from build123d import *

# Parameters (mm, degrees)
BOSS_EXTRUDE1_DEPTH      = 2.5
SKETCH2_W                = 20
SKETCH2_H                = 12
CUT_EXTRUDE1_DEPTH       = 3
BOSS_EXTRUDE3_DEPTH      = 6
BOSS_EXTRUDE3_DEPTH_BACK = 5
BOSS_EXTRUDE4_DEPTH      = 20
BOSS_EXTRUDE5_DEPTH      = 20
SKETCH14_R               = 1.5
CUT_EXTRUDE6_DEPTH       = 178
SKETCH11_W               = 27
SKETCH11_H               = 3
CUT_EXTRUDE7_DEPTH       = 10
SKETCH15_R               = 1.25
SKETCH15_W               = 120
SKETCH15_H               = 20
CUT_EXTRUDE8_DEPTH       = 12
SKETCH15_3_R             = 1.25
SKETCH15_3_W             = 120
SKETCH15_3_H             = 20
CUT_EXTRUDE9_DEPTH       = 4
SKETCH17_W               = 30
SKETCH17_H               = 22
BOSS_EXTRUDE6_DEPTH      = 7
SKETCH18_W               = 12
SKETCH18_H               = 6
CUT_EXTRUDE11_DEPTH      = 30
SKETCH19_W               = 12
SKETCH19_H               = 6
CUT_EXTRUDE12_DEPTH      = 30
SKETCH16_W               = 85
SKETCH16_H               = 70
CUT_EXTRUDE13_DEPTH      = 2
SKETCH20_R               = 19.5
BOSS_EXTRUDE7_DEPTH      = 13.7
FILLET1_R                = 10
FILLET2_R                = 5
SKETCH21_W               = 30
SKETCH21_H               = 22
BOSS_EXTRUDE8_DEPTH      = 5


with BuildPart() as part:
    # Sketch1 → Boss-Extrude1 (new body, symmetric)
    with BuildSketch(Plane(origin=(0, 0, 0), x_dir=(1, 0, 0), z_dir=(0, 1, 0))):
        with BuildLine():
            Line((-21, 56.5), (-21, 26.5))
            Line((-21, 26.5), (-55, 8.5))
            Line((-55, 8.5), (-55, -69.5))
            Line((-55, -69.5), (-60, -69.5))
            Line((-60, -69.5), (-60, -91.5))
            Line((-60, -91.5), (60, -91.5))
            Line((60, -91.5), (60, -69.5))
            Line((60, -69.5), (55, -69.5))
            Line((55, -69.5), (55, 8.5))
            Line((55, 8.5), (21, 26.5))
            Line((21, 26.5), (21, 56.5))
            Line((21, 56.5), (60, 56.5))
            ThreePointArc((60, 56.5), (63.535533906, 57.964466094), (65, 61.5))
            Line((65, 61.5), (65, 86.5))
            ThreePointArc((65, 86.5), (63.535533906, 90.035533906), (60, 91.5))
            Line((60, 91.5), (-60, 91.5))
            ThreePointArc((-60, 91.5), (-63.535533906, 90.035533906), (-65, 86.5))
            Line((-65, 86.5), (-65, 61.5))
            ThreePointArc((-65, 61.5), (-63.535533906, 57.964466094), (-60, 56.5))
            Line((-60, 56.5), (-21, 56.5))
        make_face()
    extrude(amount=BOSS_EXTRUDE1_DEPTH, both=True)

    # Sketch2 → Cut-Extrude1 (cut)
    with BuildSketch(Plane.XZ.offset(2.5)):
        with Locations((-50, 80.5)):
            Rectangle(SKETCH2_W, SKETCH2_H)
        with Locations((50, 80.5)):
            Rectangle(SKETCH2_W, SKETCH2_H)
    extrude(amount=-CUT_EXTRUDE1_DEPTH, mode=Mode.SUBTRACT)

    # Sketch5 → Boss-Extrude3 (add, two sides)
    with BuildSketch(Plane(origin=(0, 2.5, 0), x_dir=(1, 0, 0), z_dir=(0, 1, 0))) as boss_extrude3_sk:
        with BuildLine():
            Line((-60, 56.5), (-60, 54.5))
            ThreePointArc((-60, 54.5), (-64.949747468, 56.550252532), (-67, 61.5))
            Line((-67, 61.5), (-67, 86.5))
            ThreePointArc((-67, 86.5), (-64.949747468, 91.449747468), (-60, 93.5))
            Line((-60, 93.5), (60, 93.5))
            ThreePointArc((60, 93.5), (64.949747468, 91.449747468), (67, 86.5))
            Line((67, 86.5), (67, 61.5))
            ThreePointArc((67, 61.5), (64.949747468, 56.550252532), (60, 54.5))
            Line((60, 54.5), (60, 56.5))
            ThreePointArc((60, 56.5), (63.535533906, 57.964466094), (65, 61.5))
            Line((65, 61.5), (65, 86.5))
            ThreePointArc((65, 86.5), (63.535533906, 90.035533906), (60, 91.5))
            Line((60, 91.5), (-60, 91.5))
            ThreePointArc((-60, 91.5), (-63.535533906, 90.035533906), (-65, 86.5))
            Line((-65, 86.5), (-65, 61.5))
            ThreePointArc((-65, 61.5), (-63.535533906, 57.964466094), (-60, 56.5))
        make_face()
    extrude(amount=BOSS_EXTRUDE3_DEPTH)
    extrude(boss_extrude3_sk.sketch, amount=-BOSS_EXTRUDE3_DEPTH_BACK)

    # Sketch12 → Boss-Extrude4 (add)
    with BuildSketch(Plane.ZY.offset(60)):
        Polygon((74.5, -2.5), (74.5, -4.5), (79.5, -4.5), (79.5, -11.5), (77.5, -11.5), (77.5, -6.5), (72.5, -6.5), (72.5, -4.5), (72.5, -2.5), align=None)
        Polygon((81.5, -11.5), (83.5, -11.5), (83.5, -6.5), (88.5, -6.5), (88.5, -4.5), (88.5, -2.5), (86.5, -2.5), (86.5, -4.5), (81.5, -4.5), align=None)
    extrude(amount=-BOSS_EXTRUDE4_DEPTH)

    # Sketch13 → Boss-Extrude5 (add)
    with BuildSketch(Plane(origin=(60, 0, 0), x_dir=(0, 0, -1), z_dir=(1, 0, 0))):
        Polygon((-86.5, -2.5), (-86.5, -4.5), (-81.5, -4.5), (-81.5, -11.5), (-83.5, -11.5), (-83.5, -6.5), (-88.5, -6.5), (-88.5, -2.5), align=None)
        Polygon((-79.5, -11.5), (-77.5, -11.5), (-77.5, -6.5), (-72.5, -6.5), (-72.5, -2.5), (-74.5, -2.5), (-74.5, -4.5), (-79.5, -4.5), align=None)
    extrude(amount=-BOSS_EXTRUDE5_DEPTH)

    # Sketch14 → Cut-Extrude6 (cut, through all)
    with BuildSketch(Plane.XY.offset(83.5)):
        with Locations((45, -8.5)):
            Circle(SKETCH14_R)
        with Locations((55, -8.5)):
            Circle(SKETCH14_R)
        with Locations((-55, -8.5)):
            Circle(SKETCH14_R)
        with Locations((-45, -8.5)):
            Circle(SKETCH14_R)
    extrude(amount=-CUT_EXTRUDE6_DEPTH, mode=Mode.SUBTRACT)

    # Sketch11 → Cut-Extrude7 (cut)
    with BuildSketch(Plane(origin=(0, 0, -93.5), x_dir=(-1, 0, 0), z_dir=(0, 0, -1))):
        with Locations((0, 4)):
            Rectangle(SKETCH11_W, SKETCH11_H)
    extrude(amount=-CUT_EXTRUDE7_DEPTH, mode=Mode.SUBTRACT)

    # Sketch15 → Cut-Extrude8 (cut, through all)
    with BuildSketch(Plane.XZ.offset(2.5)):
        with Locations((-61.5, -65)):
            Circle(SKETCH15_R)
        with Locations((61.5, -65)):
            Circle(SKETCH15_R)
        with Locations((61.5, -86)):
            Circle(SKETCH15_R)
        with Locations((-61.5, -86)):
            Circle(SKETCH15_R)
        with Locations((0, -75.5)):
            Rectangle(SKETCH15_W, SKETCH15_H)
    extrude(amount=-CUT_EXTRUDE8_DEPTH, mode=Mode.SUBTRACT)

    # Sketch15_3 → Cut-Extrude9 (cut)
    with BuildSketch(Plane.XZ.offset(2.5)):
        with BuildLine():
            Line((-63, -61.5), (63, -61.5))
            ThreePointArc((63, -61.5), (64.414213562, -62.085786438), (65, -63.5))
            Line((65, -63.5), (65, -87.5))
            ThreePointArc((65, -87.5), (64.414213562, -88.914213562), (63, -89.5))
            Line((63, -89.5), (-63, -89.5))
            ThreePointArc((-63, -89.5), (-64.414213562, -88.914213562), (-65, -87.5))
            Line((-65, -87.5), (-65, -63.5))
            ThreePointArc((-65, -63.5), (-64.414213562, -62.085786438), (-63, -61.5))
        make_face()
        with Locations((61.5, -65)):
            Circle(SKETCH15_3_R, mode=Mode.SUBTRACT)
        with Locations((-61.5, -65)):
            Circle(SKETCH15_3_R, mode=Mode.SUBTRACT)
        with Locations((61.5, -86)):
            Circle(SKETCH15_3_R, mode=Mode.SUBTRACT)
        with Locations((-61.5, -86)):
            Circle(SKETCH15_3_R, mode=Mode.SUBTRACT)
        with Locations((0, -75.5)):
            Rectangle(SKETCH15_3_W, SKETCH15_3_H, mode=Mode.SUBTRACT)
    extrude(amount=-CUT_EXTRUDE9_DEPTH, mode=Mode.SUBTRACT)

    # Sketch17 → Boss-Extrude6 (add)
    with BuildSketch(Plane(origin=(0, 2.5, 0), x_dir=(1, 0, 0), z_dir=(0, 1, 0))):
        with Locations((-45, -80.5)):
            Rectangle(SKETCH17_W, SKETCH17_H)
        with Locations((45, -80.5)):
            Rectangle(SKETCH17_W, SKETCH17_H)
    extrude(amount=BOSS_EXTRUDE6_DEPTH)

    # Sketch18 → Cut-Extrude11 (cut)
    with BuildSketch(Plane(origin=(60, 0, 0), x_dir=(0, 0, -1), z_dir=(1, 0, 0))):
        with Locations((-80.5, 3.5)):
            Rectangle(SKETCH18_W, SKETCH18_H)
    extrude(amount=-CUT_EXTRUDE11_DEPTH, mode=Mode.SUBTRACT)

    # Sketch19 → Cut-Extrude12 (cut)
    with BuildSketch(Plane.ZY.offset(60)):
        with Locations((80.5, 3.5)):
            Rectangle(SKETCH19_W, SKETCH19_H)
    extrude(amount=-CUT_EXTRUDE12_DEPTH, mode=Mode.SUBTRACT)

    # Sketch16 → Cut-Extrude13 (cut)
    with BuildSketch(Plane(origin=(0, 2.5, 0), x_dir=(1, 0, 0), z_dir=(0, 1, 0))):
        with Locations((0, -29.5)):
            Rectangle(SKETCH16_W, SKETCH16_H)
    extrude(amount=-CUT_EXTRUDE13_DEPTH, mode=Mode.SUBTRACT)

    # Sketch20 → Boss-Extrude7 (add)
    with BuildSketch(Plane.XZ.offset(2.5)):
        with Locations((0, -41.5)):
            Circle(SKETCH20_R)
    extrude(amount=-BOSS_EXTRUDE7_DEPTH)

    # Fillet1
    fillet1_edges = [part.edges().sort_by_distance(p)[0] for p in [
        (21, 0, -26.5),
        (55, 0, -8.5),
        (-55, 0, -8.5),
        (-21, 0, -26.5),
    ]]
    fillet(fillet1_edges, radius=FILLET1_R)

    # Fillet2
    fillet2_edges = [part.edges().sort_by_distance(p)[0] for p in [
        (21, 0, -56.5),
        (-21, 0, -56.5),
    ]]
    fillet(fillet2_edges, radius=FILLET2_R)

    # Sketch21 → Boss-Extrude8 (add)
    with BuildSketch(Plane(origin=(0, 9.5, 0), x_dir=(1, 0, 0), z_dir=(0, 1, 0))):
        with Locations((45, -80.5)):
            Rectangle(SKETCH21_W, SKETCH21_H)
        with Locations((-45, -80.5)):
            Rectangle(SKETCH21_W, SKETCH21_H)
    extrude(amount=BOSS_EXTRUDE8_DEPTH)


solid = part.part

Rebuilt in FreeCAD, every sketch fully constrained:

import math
import FreeCAD as App
import Part
import Sketcher


def edges_at(feature, points):
    """Names of the edges that pass closest to the given points."""
    edges = feature.Shape.Edges
    near = lambda p: min(range(len(edges)), key=lambda i: edges[i].distToShape(Part.Vertex(*p))[0])
    return sorted({f"Edge{near(p) + 1}" for p in points})


def add_polygon(sketch, points):
    """Adds a closed chain of lines whose ends are joined by coincident constraints."""
    first, n = sketch.GeometryCount, len(points)
    for a, b in zip(points, points[1:] + points[:1]):
        sketch.addGeometry(Part.LineSegment(App.Vector(*a, 0), App.Vector(*b, 0)), False)
    for i in range(n):
        sketch.addConstraint(Sketcher.Constraint("Coincident", first + i, 2, first + (i + 1) % n, 1))

doc = App.newDocument("Part")
body = doc.addObject("PartDesign::Body", "Body")

sketch1 = doc.addObject("Sketcher::SketchObject", "Sketch")
body.addObject(sketch1)
sketch1.AttachmentSupport = (doc.XZ_Plane, [""])
sketch1.MapMode = "FlatFace"
sketch1.addGeometry([
    Part.LineSegment(App.Vector(-21, -56, 0), App.Vector(-21, -26, 0)),
    Part.LineSegment(App.Vector(-21, -26, 0), App.Vector(-55, -8, 0)),
    Part.LineSegment(App.Vector(-55, -8, 0), App.Vector(-55, 70, 0)),
    Part.LineSegment(App.Vector(-55, 70, 0), App.Vector(-60, 70, 0)),
    Part.LineSegment(App.Vector(-60, 70, 0), App.Vector(-60, 92, 0)),
    Part.LineSegment(App.Vector(-60, 92, 0), App.Vector(60, 92, 0)),
    Part.LineSegment(App.Vector(60, 92, 0), App.Vector(60, 70, 0)),
    Part.LineSegment(App.Vector(60, 70, 0), App.Vector(55, 70, 0)),
    Part.LineSegment(App.Vector(55, 70, 0), App.Vector(55, -8, 0)),
    Part.LineSegment(App.Vector(55, -8, 0), App.Vector(21, -26, 0)),
    Part.LineSegment(App.Vector(21, -26, 0), App.Vector(21, -56, 0)),
    Part.LineSegment(App.Vector(21, -56, 0), App.Vector(60, -56, 0)),
    Part.ArcOfCircle(Part.Circle(App.Vector(60, -62, 0), App.Vector(0, 0, 1), 5), math.radians(0), math.radians(90)),
    Part.LineSegment(App.Vector(65, -62, 0), App.Vector(65, -86, 0)),
    Part.ArcOfCircle(Part.Circle(App.Vector(60, -86, 0), App.Vector(0, 0, 1), 5), math.radians(-90), math.radians(0)),
    Part.LineSegment(App.Vector(60, -92, 0), App.Vector(-60, -92, 0)),
    Part.ArcOfCircle(Part.Circle(App.Vector(-60, -86, 0), App.Vector(0, 0, 1), 5), math.radians(180), math.radians(270)),
    Part.LineSegment(App.Vector(-65, -86, 0), App.Vector(-65, -62, 0)),
    Part.ArcOfCircle(Part.Circle(App.Vector(-60, -62, 0), App.Vector(0, 0, 1), 5), math.radians(90), math.radians(180)),
    Part.LineSegment(App.Vector(-60, -56, 0), App.Vector(-21, -56, 0)),
], False)
sketch1.addConstraint([
    Sketcher.Constraint("Coincident", 0, 2, 1, 1),
    Sketcher.Constraint("Coincident", 1, 2, 2, 1),
    Sketcher.Constraint("Coincident", 2, 2, 3, 1),
    Sketcher.Constraint("Coincident", 3, 2, 4, 1),
    Sketcher.Constraint("Coincident", 4, 2, 5, 1),
    Sketcher.Constraint("Coincident", 5, 2, 6, 1),
    Sketcher.Constraint("Coincident", 6, 2, 7, 1),
    Sketcher.Constraint("Coincident", 7, 2, 8, 1),
    Sketcher.Constraint("Coincident", 8, 2, 9, 1),
    Sketcher.Constraint("Coincident", 9, 2, 10, 1),
    Sketcher.Constraint("Coincident", 10, 2, 11, 1),
    Sketcher.Constraint("Tangent", 11, 2, 12, 2),
    Sketcher.Constraint("Tangent", 12, 1, 13, 1),
    Sketcher.Constraint("Tangent", 13, 2, 14, 2),
    Sketcher.Constraint("Tangent", 14, 1, 15, 1),
    Sketcher.Constraint("Tangent", 15, 2, 16, 2),
    Sketcher.Constraint("Tangent", 16, 1, 17, 1),
    Sketcher.Constraint("Tangent", 17, 2, 18, 2),
    Sketcher.Constraint("Tangent", 18, 1, 19, 1),
    Sketcher.Constraint("Coincident", 19, 2, 0, 1),
    Sketcher.Constraint("Vertical", 0),
    Sketcher.Constraint("Vertical", 2),
    Sketcher.Constraint("Horizontal", 3),
    Sketcher.Constraint("Vertical", 4),
    Sketcher.Constraint("Horizontal", 5),
    Sketcher.Constraint("Vertical", 6),
    Sketcher.Constraint("Horizontal", 7),
    Sketcher.Constraint("Vertical", 8),
    Sketcher.Constraint("Vertical", 10),
    Sketcher.Constraint("Horizontal", 11),
    Sketcher.Constraint("Vertical", 13),
    Sketcher.Constraint("Horizontal", 15),
    Sketcher.Constraint("Vertical", 17),
    Sketcher.Constraint("Horizontal", 19),
    Sketcher.Constraint("Equal", 12, 14),
    Sketcher.Constraint("Equal", 14, 16),
    Sketcher.Constraint("Equal", 16, 18),
    Sketcher.Constraint("Symmetric", 4, 2, 14, 1, -1, 1),
    Sketcher.Constraint("Symmetric", 12, 3, 18, 3, -2),
    Sketcher.Constraint("Symmetric", 3, 2, 6, 2, -2),
    Sketcher.Constraint("Symmetric", 1, 2, 8, 2, -2),
    Sketcher.Constraint("Symmetric", 0, 2, 9, 2, -2),
    Sketcher.Constraint("Radius", 12, 5.0),
    Sketcher.Constraint("DistanceX", 3, 2, 3, 1, 5.0),
    Sketcher.Constraint("DistanceX", 5, 1, 5, 2, 120.0),
    Sketcher.Constraint("DistanceX", 11, 1, 11, 2, 39.0),
    Sketcher.Constraint("DistanceY", 0, 1, 0, 2, 30.0),
    Sketcher.Constraint("DistanceY", 2, 1, 2, 2, 78.0),
    Sketcher.Constraint("DistanceY", 4, 1, 4, 2, 22.0),
    Sketcher.Constraint("DistanceY", 13, 2, 13, 1, 25.0),
    Sketcher.Constraint("DistanceY", 0, 2, 1, 2, 18.0),
])
pad1 = doc.addObject("PartDesign::Pad", "Pad")
body.addObject(pad1)
pad1.Profile = sketch1
pad1.Length = 5
pad1.Midplane = True

sketch2 = doc.addObject("Sketcher::SketchObject", "Sketch001")
body.addObject(sketch2)
sketch2.AttachmentSupport = (doc.XZ_Plane, [""])
sketch2.MapMode = "FlatFace"
sketch2.AttachmentOffset = App.Placement(App.Vector(0, 0, 2.5), App.Rotation())
add_polygon(sketch2, [(-60, 86), (-60, 74), (-40, 74), (-40, 86)])
add_polygon(sketch2, [(40, 86), (40, 74), (60, 74), (60, 86)])
sketch2.addConstraint([
    Sketcher.Constraint("Vertical", 0),
    Sketcher.Constraint("Horizontal", 1),
    Sketcher.Constraint("Vertical", 2),
    Sketcher.Constraint("Horizontal", 3),
    Sketcher.Constraint("Vertical", 4),
    Sketcher.Constraint("Horizontal", 5),
    Sketcher.Constraint("Vertical", 6),
    Sketcher.Constraint("Horizontal", 7),
    Sketcher.Constraint("Symmetric", 1, 2, 4, 2, -2),
    Sketcher.Constraint("Symmetric", 3, 2, 6, 2, -2),
    Sketcher.Constraint("DistanceX", 1, 1, 1, 2, 20.0),
    Sketcher.Constraint("DistanceY", 0, 2, 0, 1, 12.0),
    Sketcher.Constraint("DistanceX", 0, 2, -1, 1, 60.0),
    Sketcher.Constraint("DistanceY", -1, 1, 0, 2, 74.5),
])
pocket1 = doc.addObject("PartDesign::Pocket", "Pocket")
body.addObject(pocket1)
pocket1.Profile = sketch2
pocket1.Length = 3

sketch3 = doc.addObject("Sketcher::SketchObject", "Sketch002")
body.addObject(sketch3)
sketch3.AttachmentSupport = (doc.XZ_Plane, [""])
sketch3.MapMode = "FlatFace"
sketch3.AttachmentOffset = App.Placement(App.Vector(0, 0, -2.5), App.Rotation())
sketch3.addGeometry([
    Part.LineSegment(App.Vector(-60, -54.5, 0), App.Vector(-60, -56.5, 0)),
    Part.ArcOfCircle(Part.Circle(App.Vector(-60, -61.5, 0), App.Vector(0, 0, 1), 5), math.radians(90), math.radians(180)),
    Part.LineSegment(App.Vector(-65, -61.5, 0), App.Vector(-65, -86.5, 0)),
    Part.ArcOfCircle(Part.Circle(App.Vector(-60, -86.5, 0), App.Vector(0, 0, 1), 5), math.radians(180), math.radians(270)),
    Part.LineSegment(App.Vector(-60, -91.5, 0), App.Vector(60, -91.5, 0)),
    Part.ArcOfCircle(Part.Circle(App.Vector(60, -86.5, 0), App.Vector(0, 0, 1), 5), math.radians(-90), math.radians(0)),
    Part.LineSegment(App.Vector(65, -86.5, 0), App.Vector(65, -61.5, 0)),
    Part.ArcOfCircle(Part.Circle(App.Vector(60, -61.5, 0), App.Vector(0, 0, 1), 5), math.radians(0), math.radians(90)),
    Part.LineSegment(App.Vector(60, -56.5, 0), App.Vector(60, -54.5, 0)),
    Part.ArcOfCircle(Part.Circle(App.Vector(60, -61.5, 0), App.Vector(0, 0, 1), 7), math.radians(0), math.radians(90)),
    Part.LineSegment(App.Vector(67, -61.5, 0), App.Vector(67, -86.5, 0)),
    Part.ArcOfCircle(Part.Circle(App.Vector(60, -86.5, 0), App.Vector(0, 0, 1), 7), math.radians(-90), math.radians(0)),
    Part.LineSegment(App.Vector(60, -93.5, 0), App.Vector(-60, -93.5, 0)),
    Part.ArcOfCircle(Part.Circle(App.Vector(-60, -86.5, 0), App.Vector(0, 0, 1), 7), math.radians(-180), math.radians(-90)),
    Part.LineSegment(App.Vector(-67, -86.5, 0), App.Vector(-67, -61.5, 0)),
    Part.ArcOfCircle(Part.Circle(App.Vector(-60, -61.5, 0), App.Vector(0, 0, 1), 7), math.radians(90), math.radians(180)),
], False)
sketch3.addConstraint([
    Sketcher.Constraint("Coincident", 0, 2, 1, 1),
    Sketcher.Constraint("Tangent", 1, 2, 2, 1),
    Sketcher.Constraint("Tangent", 2, 2, 3, 1),
    Sketcher.Constraint("Tangent", 3, 2, 4, 1),
    Sketcher.Constraint("Tangent", 4, 2, 5, 1),
    Sketcher.Constraint("Tangent", 5, 2, 6, 1),
    Sketcher.Constraint("Tangent", 6, 2, 7, 1),
    Sketcher.Constraint("Coincident", 7, 2, 8, 1),
    Sketcher.Constraint("Coincident", 8, 2, 9, 2),
    Sketcher.Constraint("Tangent", 9, 1, 10, 1),
    Sketcher.Constraint("Tangent", 10, 2, 11, 2),
    Sketcher.Constraint("Tangent", 11, 1, 12, 1),
    Sketcher.Constraint("Tangent", 12, 2, 13, 2),
    Sketcher.Constraint("Tangent", 13, 1, 14, 1),
    Sketcher.Constraint("Tangent", 14, 2, 15, 2),
    Sketcher.Constraint("Coincident", 15, 1, 0, 1),
    Sketcher.Constraint("Vertical", 0),
    Sketcher.Constraint("Vertical", 2),
    Sketcher.Constraint("Horizontal", 4),
    Sketcher.Constraint("Vertical", 6),
    Sketcher.Constraint("Vertical", 8),
    Sketcher.Constraint("Vertical", 10),
    Sketcher.Constraint("Horizontal", 12),
    Sketcher.Constraint("Vertical", 14),
    Sketcher.Constraint("Coincident", 9, 3, 7, 3),
    Sketcher.Constraint("Coincident", 11, 3, 5, 3),
    Sketcher.Constraint("Coincident", 13, 3, 3, 3),
    Sketcher.Constraint("Coincident", 15, 3, 1, 3),
    Sketcher.Constraint("Equal", 1, 3),
    Sketcher.Constraint("Equal", 3, 5),
    Sketcher.Constraint("Equal", 5, 7),
    Sketcher.Constraint("Symmetric", 1, 3, 7, 3, -2),
    Sketcher.Constraint("Vertical", 15, 3, 0, 2),
    Sketcher.Constraint("Vertical", 4, 2, 7, 2),
    Sketcher.Constraint("Radius", 1, 5.0),
    Sketcher.Constraint("Radius", 9, 7.0),
    Sketcher.Constraint("DistanceX", 4, 1, 4, 2, 120.0),
    Sketcher.Constraint("DistanceY", 2, 2, 2, 1, 25.0),
    Sketcher.Constraint("DistanceY", 1, 3, -1, 1, 61.5),
])
pad2 = doc.addObject("PartDesign::Pad", "Pad001")
body.addObject(pad2)
pad2.Profile = sketch3
pad2.Type = "TwoLengths"
pad2.Length = 6
pad2.Length2 = 5
pad2.Reversed = True

sketch4 = doc.addObject("Sketcher::SketchObject", "Sketch003")
body.addObject(sketch4)
sketch4.AttachmentSupport = (doc.YZ_Plane, [""])
sketch4.MapMode = "FlatFace"
sketch4.AttachmentOffset = App.Placement(App.Vector(0, 0, -60), App.Rotation())
add_polygon(sketch4, [(-4.5, 74.5), (-2.5, 74.5), (-2.5, 72.5), (-6.5, 72.5), (-6.5, 77.5), (-11.5, 77.5), (-11.5, 79.5), (-4.5, 79.5)])
add_polygon(sketch4, [(-11.5, 81.5), (-11.5, 83.5), (-6.5, 83.5), (-6.5, 88.5), (-2.5, 88.5), (-2.5, 86.5), (-4.5, 86.5), (-4.5, 81.5)])
sketch4.addConstraint([
    Sketcher.Constraint("Horizontal", 0),
    Sketcher.Constraint("Vertical", 1),
    Sketcher.Constraint("Horizontal", 2),
    Sketcher.Constraint("Vertical", 3),
    Sketcher.Constraint("Horizontal", 4),
    Sketcher.Constraint("Vertical", 5),
    Sketcher.Constraint("Horizontal", 6),
    Sketcher.Constraint("Vertical", 7),
    Sketcher.Constraint("Vertical", 8),
    Sketcher.Constraint("Horizontal", 9),
    Sketcher.Constraint("Vertical", 10),
    Sketcher.Constraint("Horizontal", 11),
    Sketcher.Constraint("Vertical", 12),
    Sketcher.Constraint("Horizontal", 13),
    Sketcher.Constraint("Vertical", 14),
    Sketcher.Constraint("Horizontal", 15),
    Sketcher.Constraint("Vertical", 5, 2, 8, 2),
    Sketcher.Constraint("Vertical", 3, 2, 9, 2),
    Sketcher.Constraint("Vertical", 1, 2, 11, 2),
    Sketcher.Constraint("Vertical", 7, 2, 13, 2),
    Sketcher.Constraint("Equal", 13, 1),
    Sketcher.Constraint("Equal", 9, 3),
    Sketcher.Constraint("Equal", 1, 5),
    Sketcher.Constraint("Equal", 5, 8),
    Sketcher.Constraint("Equal", 7, 10),
    Sketcher.Constraint("Equal", 8, 12),
    Sketcher.Constraint("DistanceX", 0, 1, 0, 2, 2.0),
    Sketcher.Constraint("DistanceX", 2, 2, 2, 1, 4.0),
    Sketcher.Constraint("DistanceX", 4, 2, 4, 1, 5.0),
    Sketcher.Constraint("DistanceY", 5, 2, 8, 2, 4.0),
    Sketcher.Constraint("DistanceX", 0, 2, -1, 1, 2.5),
    Sketcher.Constraint("DistanceY", -1, 1, 0, 2, 74.5),
])
pad3 = doc.addObject("PartDesign::Pad", "Pad002")
body.addObject(pad3)
pad3.Profile = sketch4
pad3.Length = 20

sketch5 = doc.addObject("Sketcher::SketchObject", "Sketch004")
body.addObject(sketch5)
sketch5.AttachmentSupport = (doc.YZ_Plane, [""])
sketch5.MapMode = "FlatFace"
sketch5.AttachmentOffset = App.Placement(App.Vector(0, 0, 60), App.Rotation())
add_polygon(sketch5, [(-4.5, 86.5), (-2.5, 86.5), (-2.5, 88.5), (-6.5, 88.5), (-6.5, 83.5), (-11.5, 83.5), (-11.5, 81.5), (-4.5, 81.5)])
add_polygon(sketch5, [(-11.5, 79.5), (-11.5, 77.5), (-6.5, 77.5), (-6.5, 72.5), (-2.5, 72.5), (-2.5, 74.5), (-4.5, 74.5), (-4.5, 79.5)])
sketch5.addConstraint([
    Sketcher.Constraint("Horizontal", 0),
    Sketcher.Constraint("Vertical", 1),
    Sketcher.Constraint("Horizontal", 2),
    Sketcher.Constraint("Vertical", 3),
    Sketcher.Constraint("Horizontal", 4),
    Sketcher.Constraint("Vertical", 5),
    Sketcher.Constraint("Horizontal", 6),
    Sketcher.Constraint("Vertical", 7),
    Sketcher.Constraint("Vertical", 8),
    Sketcher.Constraint("Horizontal", 9),
    Sketcher.Constraint("Vertical", 10),
    Sketcher.Constraint("Horizontal", 11),
    Sketcher.Constraint("Vertical", 12),
    Sketcher.Constraint("Horizontal", 13),
    Sketcher.Constraint("Vertical", 14),
    Sketcher.Constraint("Horizontal", 15),
    Sketcher.Constraint("Vertical", 5, 2, 8, 2),
    Sketcher.Constraint("Vertical", 3, 2, 9, 2),
    Sketcher.Constraint("Vertical", 1, 2, 11, 2),
    Sketcher.Constraint("Vertical", 7, 2, 13, 2),
    Sketcher.Constraint("Equal", 13, 1),
    Sketcher.Constraint("Equal", 9, 3),
    Sketcher.Constraint("Equal", 1, 5),
    Sketcher.Constraint("Equal", 5, 8),
    Sketcher.Constraint("Equal", 7, 10),
    Sketcher.Constraint("Equal", 8, 12),
    Sketcher.Constraint("DistanceX", 0, 1, 0, 2, 2.0),
    Sketcher.Constraint("DistanceX", 2, 2, 2, 1, 4.0),
    Sketcher.Constraint("DistanceX", 4, 2, 4, 1, 5.0),
    Sketcher.Constraint("DistanceY", 8, 2, 5, 2, 4.0),
    Sketcher.Constraint("DistanceX", 0, 2, -1, 1, 2.5),
    Sketcher.Constraint("DistanceY", -1, 1, 0, 2, 86.5),
])
pad4 = doc.addObject("PartDesign::Pad", "Pad003")
body.addObject(pad4)
pad4.Profile = sketch5
pad4.Length = 20
pad4.Reversed = True

sketch6 = doc.addObject("Sketcher::SketchObject", "Sketch005")
body.addObject(sketch6)
sketch6.AttachmentSupport = (doc.XY_Plane, [""])
sketch6.MapMode = "FlatFace"
sketch6.AttachmentOffset = App.Placement(App.Vector(0, 0, 83.5), App.Rotation())
sketch6.addGeometry([
    Part.Circle(App.Vector(45, -8.5, 0), App.Vector(0, 0, 1), 1.5),
    Part.Circle(App.Vector(55, -8.5, 0), App.Vector(0, 0, 1), 1.5),
    Part.Circle(App.Vector(-55, -8.5, 0), App.Vector(0, 0, 1), 1.5),
    Part.Circle(App.Vector(-45, -8.5, 0), App.Vector(0, 0, 1), 1.5),
], False)
sketch6.addConstraint([
    Sketcher.Constraint("Equal", 0, 1),
    Sketcher.Constraint("Equal", 1, 2),
    Sketcher.Constraint("Equal", 2, 3),
    Sketcher.Constraint("Symmetric", 1, 3, 2, 3, -2),
    Sketcher.Constraint("Symmetric", 0, 3, 3, 3, -2),
    Sketcher.Constraint("Horizontal", 0, 3, 1, 3),
    Sketcher.Constraint("Diameter", 0, 3.0),
    Sketcher.Constraint("DistanceX", -1, 1, 0, 3, 45.0),
    Sketcher.Constraint("DistanceX", -1, 1, 1, 3, 55.0),
    Sketcher.Constraint("DistanceY", 0, 3, -1, 1, 8.5),
])
pocket2 = doc.addObject("PartDesign::Pocket", "Pocket001")
body.addObject(pocket2)
pocket2.Profile = sketch6
pocket2.Type = "ThroughAll"

sketch7 = doc.addObject("Sketcher::SketchObject", "Sketch006")
body.addObject(sketch7)
sketch7.AttachmentSupport = (doc.XY_Plane, [""])
sketch7.MapMode = "FlatFace"
sketch7.AttachmentOffset = App.Placement(App.Vector(0, 0, -93.5), App.Rotation())
add_polygon(sketch7, [(13.5, 5.5), (13.5, 2.5), (-13.5, 2.5), (-13.5, 5.5)])
sketch7.addConstraint([
    Sketcher.Constraint("Vertical", 0),
    Sketcher.Constraint("Horizontal", 1),
    Sketcher.Constraint("Vertical", 2),
    Sketcher.Constraint("Horizontal", 3),
    Sketcher.Constraint("DistanceX", 1, 2, 1, 1, 27.0),
    Sketcher.Constraint("DistanceY", 0, 2, 0, 1, 3.0),
    Sketcher.Constraint("DistanceX", -1, 1, 0, 2, 13.5),
    Sketcher.Constraint("DistanceY", -1, 1, 0, 2, 2.5),
])
pocket3 = doc.addObject("PartDesign::Pocket", "Pocket002")
body.addObject(pocket3)
pocket3.Profile = sketch7
pocket3.Length = 10
pocket3.Reversed = True

sketch8 = doc.addObject("Sketcher::SketchObject", "Sketch007")
body.addObject(sketch8)
sketch8.AttachmentSupport = (doc.XZ_Plane, [""])
sketch8.MapMode = "FlatFace"
sketch8.AttachmentOffset = App.Placement(App.Vector(0, 0, 2.5), App.Rotation())
sketch8.addGeometry(Part.Circle(App.Vector(-61.5, -65, 0), App.Vector(0, 0, 1), 1.2), False)
sketch8.addGeometry(Part.Circle(App.Vector(61.5, -65, 0), App.Vector(0, 0, 1), 1.2), False)
sketch8.addGeometry(Part.Circle(App.Vector(61.5, -86, 0), App.Vector(0, 0, 1), 1.2), False)
sketch8.addGeometry(Part.Circle(App.Vector(-61.5, -86, 0), App.Vector(0, 0, 1), 1.2), False)
add_polygon(sketch8, [(-60, -65.5), (-60, -85.5), (60, -85.5), (60, -65.5)])
sketch8.addConstraint([
    Sketcher.Constraint("Vertical", 4),
    Sketcher.Constraint("Horizontal", 5),
    Sketcher.Constraint("Vertical", 6),
    Sketcher.Constraint("Horizontal", 7),
    Sketcher.Constraint("Equal", 0, 1),
    Sketcher.Constraint("Equal", 1, 2),
    Sketcher.Constraint("Equal", 2, 3),
    Sketcher.Constraint("Symmetric", 0, 3, 1, 3, -2),
    Sketcher.Constraint("Symmetric", 2, 3, 3, 3, -2),
    Sketcher.Constraint("Vertical", 1, 3, 2, 3),
    Sketcher.Constraint("Diameter", 0, 2.5),
    Sketcher.Constraint("DistanceX", 5, 1, 5, 2, 120.0),
    Sketcher.Constraint("DistanceY", 4, 2, 4, 1, 20.0),
    Sketcher.Constraint("DistanceY", 0, 3, -1, 1, 65.0),
    Sketcher.Constraint("DistanceY", 2, 3, -1, 1, 86.0),
    Sketcher.Constraint("DistanceX", 4, 2, -1, 1, 60.0),
    Sketcher.Constraint("DistanceX", 0, 3, 1, 3, 123.0),
    Sketcher.Constraint("DistanceY", 4, 2, -1, 1, 85.5),
])
pocket4 = doc.addObject("PartDesign::Pocket", "Pocket003")
body.addObject(pocket4)
pocket4.Profile = sketch8
pocket4.Type = "ThroughAll"

sketch9 = doc.addObject("Sketcher::SketchObject", "Sketch008")
body.addObject(sketch9)
sketch9.AttachmentSupport = (doc.XZ_Plane, [""])
sketch9.MapMode = "FlatFace"
sketch9.AttachmentOffset = App.Placement(App.Vector(0, 0, 2.5), App.Rotation())
sketch9.addGeometry(Part.LineSegment(App.Vector(63, -61.5, 0), App.Vector(-63, -61.5, 0)), False)
sketch9.addGeometry(Part.ArcOfCircle(Part.Circle(App.Vector(-63, -63.5, 0), App.Vector(0, 0, 1), 2), math.radians(90), math.radians(180)), False)
sketch9.addGeometry(Part.LineSegment(App.Vector(-65, -63.5, 0), App.Vector(-65, -87.5, 0)), False)
sketch9.addGeometry(Part.ArcOfCircle(Part.Circle(App.Vector(-63, -87.5, 0), App.Vector(0, 0, 1), 2), math.radians(-180), math.radians(-90)), False)
sketch9.addGeometry(Part.LineSegment(App.Vector(-63, -89.5, 0), App.Vector(63, -89.5, 0)), False)
sketch9.addGeometry(Part.ArcOfCircle(Part.Circle(App.Vector(63, -87.5, 0), App.Vector(0, 0, 1), 2), math.radians(-90), math.radians(0)), False)
sketch9.addGeometry(Part.LineSegment(App.Vector(65, -87.5, 0), App.Vector(65, -63.5, 0)), False)
sketch9.addGeometry(Part.ArcOfCircle(Part.Circle(App.Vector(63, -63.5, 0), App.Vector(0, 0, 1), 2), math.radians(0), math.radians(90)), False)
sketch9.addGeometry(Part.Circle(App.Vector(61.5, -86, 0), App.Vector(0, 0, 1), 1.2), False)
sketch9.addGeometry(Part.Circle(App.Vector(-61.5, -86, 0), App.Vector(0, 0, 1), 1.2), False)
sketch9.addGeometry(Part.Circle(App.Vector(61.5, -65, 0), App.Vector(0, 0, 1), 1.2), False)
add_polygon(sketch9, [(-60, -85.5), (-60, -65.5), (60, -65.5), (60, -85.5)])
sketch9.addGeometry(Part.Circle(App.Vector(-61.5, -65, 0), App.Vector(0, 0, 1), 1.2), False)
sketch9.addConstraint([
    Sketcher.Constraint("Tangent", 0, 2, 1, 1),
    Sketcher.Constraint("Tangent", 1, 2, 2, 1),
    Sketcher.Constraint("Tangent", 2, 2, 3, 1),
    Sketcher.Constraint("Tangent", 3, 2, 4, 1),
    Sketcher.Constraint("Tangent", 4, 2, 5, 1),
    Sketcher.Constraint("Tangent", 5, 2, 6, 1),
    Sketcher.Constraint("Tangent", 6, 2, 7, 1),
    Sketcher.Constraint("Tangent", 7, 2, 0, 1),
    Sketcher.Constraint("Horizontal", 0),
    Sketcher.Constraint("Vertical", 2),
    Sketcher.Constraint("Horizontal", 4),
    Sketcher.Constraint("Vertical", 6),
    Sketcher.Constraint("Vertical", 11),
    Sketcher.Constraint("Horizontal", 12),
    Sketcher.Constraint("Vertical", 13),
    Sketcher.Constraint("Horizontal", 14),
    Sketcher.Constraint("Equal", 1, 3),
    Sketcher.Constraint("Equal", 3, 5),
    Sketcher.Constraint("Equal", 5, 7),
    Sketcher.Constraint("Equal", 8, 9),
    Sketcher.Constraint("Equal", 9, 10),
    Sketcher.Constraint("Equal", 10, 15),
    Sketcher.Constraint("Symmetric", 8, 3, 9, 3, -2),
    Sketcher.Constraint("Symmetric", 10, 3, 15, 3, -2),
    Sketcher.Constraint("Vertical", 8, 3, 10, 3),
    Sketcher.Constraint("Radius", 1, 2.0),
    Sketcher.Constraint("Diameter", 8, 2.5),
    Sketcher.Constraint("DistanceX", 0, 2, 0, 1, 126.0),
    Sketcher.Constraint("DistanceX", 12, 1, 12, 2, 120.0),
    Sketcher.Constraint("DistanceY", 2, 2, 2, 1, 24.0),
    Sketcher.Constraint("DistanceY", 11, 1, 11, 2, 20.0),
    Sketcher.Constraint("DistanceX", 1, 3, -1, 1, 63.0),
    Sketcher.Constraint("DistanceY", 8, 3, -1, 1, 86.0),
    Sketcher.Constraint("DistanceY", 10, 3, -1, 1, 65.0),
    Sketcher.Constraint("DistanceX", 11, 2, -1, 1, 60.0),
    Sketcher.Constraint("DistanceX", 9, 3, 8, 3, 123.0),
    Sketcher.Constraint("DistanceY", 11, 2, 1, 3, 2.0),
    Sketcher.Constraint("DistanceY", 1, 3, -1, 1, 63.5),
])
pocket5 = doc.addObject("PartDesign::Pocket", "Pocket004")
body.addObject(pocket5)
pocket5.Profile = sketch9
pocket5.Length = 4

sketch10 = doc.addObject("Sketcher::SketchObject", "Sketch009")
body.addObject(sketch10)
sketch10.AttachmentSupport = (doc.XZ_Plane, [""])
sketch10.MapMode = "FlatFace"
sketch10.AttachmentOffset = App.Placement(App.Vector(0, 0, -2.5), App.Rotation())
add_polygon(sketch10, [(-60, 70), (-60, 92), (-30, 92), (-30, 70)])
add_polygon(sketch10, [(30, 70), (30, 92), (60, 92), (60, 70)])
sketch10.addConstraint([
    Sketcher.Constraint("Vertical", 0),
    Sketcher.Constraint("Horizontal", 1),
    Sketcher.Constraint("Vertical", 2),
    Sketcher.Constraint("Horizontal", 3),
    Sketcher.Constraint("Vertical", 4),
    Sketcher.Constraint("Horizontal", 5),
    Sketcher.Constraint("Vertical", 6),
    Sketcher.Constraint("Horizontal", 7),
    Sketcher.Constraint("Symmetric", 1, 2, 4, 2, -2),
    Sketcher.Constraint("Symmetric", 3, 2, 6, 2, -2),
    Sketcher.Constraint("DistanceX", 1, 1, 1, 2, 30.0),
    Sketcher.Constraint("DistanceY", 0, 1, 0, 2, 22.0),
    Sketcher.Constraint("DistanceX", 0, 2, -1, 1, 60.0),
    Sketcher.Constraint("DistanceY", -1, 1, 0, 2, 91.5),
])
pad5 = doc.addObject("PartDesign::Pad", "Pad004")
body.addObject(pad5)
pad5.Profile = sketch10
pad5.Length = 7
pad5.Reversed = True

sketch11 = doc.addObject("Sketcher::SketchObject", "Sketch010")
body.addObject(sketch11)
sketch11.AttachmentSupport = (doc.YZ_Plane, [""])
sketch11.MapMode = "FlatFace"
sketch11.AttachmentOffset = App.Placement(App.Vector(0, 0, 60), App.Rotation())
add_polygon(sketch11, [(6, 86), (0, 86), (0, 74), (6, 74)])
sketch11.addConstraint([
    Sketcher.Constraint("Horizontal", 0),
    Sketcher.Constraint("Vertical", 1),
    Sketcher.Constraint("Horizontal", 2),
    Sketcher.Constraint("Vertical", 3),
    Sketcher.Constraint("DistanceX", 0, 2, 0, 1, 6.0),
    Sketcher.Constraint("DistanceY", 1, 2, 1, 1, 12.0),
    Sketcher.Constraint("DistanceX", -1, 1, 0, 2, 0.5),
    Sketcher.Constraint("DistanceY", -1, 1, 0, 2, 86.5),
])
pocket6 = doc.addObject("PartDesign::Pocket", "Pocket005")
body.addObject(pocket6)
pocket6.Profile = sketch11
pocket6.Length = 30

sketch12 = doc.addObject("Sketcher::SketchObject", "Sketch011")
body.addObject(sketch12)
sketch12.AttachmentSupport = (doc.YZ_Plane, [""])
sketch12.MapMode = "FlatFace"
sketch12.AttachmentOffset = App.Placement(App.Vector(0, 0, -60), App.Rotation())
add_polygon(sketch12, [(6, 74), (0, 74), (0, 86), (6, 86)])
sketch12.addConstraint([
    Sketcher.Constraint("Horizontal", 0),
    Sketcher.Constraint("Vertical", 1),
    Sketcher.Constraint("Horizontal", 2),
    Sketcher.Constraint("Vertical", 3),
    Sketcher.Constraint("DistanceX", 0, 2, 0, 1, 6.0),
    Sketcher.Constraint("DistanceY", 1, 1, 1, 2, 12.0),
    Sketcher.Constraint("DistanceX", -1, 1, 0, 2, 0.5),
    Sketcher.Constraint("DistanceY", -1, 1, 0, 2, 74.5),
])
pocket7 = doc.addObject("PartDesign::Pocket", "Pocket006")
body.addObject(pocket7)
pocket7.Profile = sketch12
pocket7.Length = 30
pocket7.Reversed = True

sketch13 = doc.addObject("Sketcher::SketchObject", "Sketch012")
body.addObject(sketch13)
sketch13.AttachmentSupport = (doc.XZ_Plane, [""])
sketch13.MapMode = "FlatFace"
sketch13.AttachmentOffset = App.Placement(App.Vector(0, 0, -2.5), App.Rotation())
add_polygon(sketch13, [(-42, -6), (-42, 64), (42, 64), (42, -6)])
sketch13.addConstraint([
    Sketcher.Constraint("Vertical", 0),
    Sketcher.Constraint("Horizontal", 1),
    Sketcher.Constraint("Vertical", 2),
    Sketcher.Constraint("Horizontal", 3),
    Sketcher.Constraint("DistanceX", 1, 1, 1, 2, 85.0),
    Sketcher.Constraint("DistanceY", 0, 1, 0, 2, 70.0),
    Sketcher.Constraint("DistanceX", 0, 2, -1, 1, 42.5),
    Sketcher.Constraint("DistanceY", -1, 1, 0, 2, 64.5),
])
pocket8 = doc.addObject("PartDesign::Pocket", "Pocket007")
body.addObject(pocket8)
pocket8.Profile = sketch13
pocket8.Length = 2
pocket8.Reversed = True

sketch14 = doc.addObject("Sketcher::SketchObject", "Sketch013")
body.addObject(sketch14)
sketch14.AttachmentSupport = (doc.XZ_Plane, [""])
sketch14.MapMode = "FlatFace"
sketch14.AttachmentOffset = App.Placement(App.Vector(0, 0, 2.5), App.Rotation())
sketch14.addGeometry(Part.Circle(App.Vector(0, -42, 0), App.Vector(0, 0, 1), 20), False)
sketch14.addConstraint([
    Sketcher.Constraint("PointOnObject", 0, 3, -2),
    Sketcher.Constraint("Diameter", 0, 39.0),
    Sketcher.Constraint("DistanceY", 0, 3, -1, 1, 41.5),
])
pad6 = doc.addObject("PartDesign::Pad", "Pad005")
body.addObject(pad6)
pad6.Profile = sketch14
pad6.Length = 13.7
pad6.Reversed = True
doc.recompute()

fillet = doc.addObject("PartDesign::Fillet", "Fillet")
body.addObject(fillet)
fillet.Base = (pad6, edges_at(pad6, [
    (21, 0, -26.5),
    (55, 0, -8.5),
    (-55, 0, -8.5),
    (-21, 0, -26.5),
]))
fillet.Radius = 10
doc.recompute()

fillet2 = doc.addObject("PartDesign::Fillet", "Fillet001")
body.addObject(fillet2)
fillet2.Base = (fillet, edges_at(fillet, [(21, 0, -56.5), (-21, 0, -56.5)]))
fillet2.Radius = 5

sketch15 = doc.addObject("Sketcher::SketchObject", "Sketch014")
body.addObject(sketch15)
sketch15.AttachmentSupport = (doc.XZ_Plane, [""])
sketch15.MapMode = "FlatFace"
sketch15.AttachmentOffset = App.Placement(App.Vector(0, 0, -9.5), App.Rotation())
add_polygon(sketch15, [(30, 70), (30, 92), (60, 92), (60, 70)])
add_polygon(sketch15, [(-60, 70), (-60, 92), (-30, 92), (-30, 70)])
sketch15.addConstraint([
    Sketcher.Constraint("Vertical", 0),
    Sketcher.Constraint("Horizontal", 1),
    Sketcher.Constraint("Vertical", 2),
    Sketcher.Constraint("Horizontal", 3),
    Sketcher.Constraint("Vertical", 4),
    Sketcher.Constraint("Horizontal", 5),
    Sketcher.Constraint("Vertical", 6),
    Sketcher.Constraint("Horizontal", 7),
    Sketcher.Constraint("Symmetric", 1, 2, 4, 2, -2),
    Sketcher.Constraint("Symmetric", 3, 2, 6, 2, -2),
    Sketcher.Constraint("DistanceX", 1, 1, 1, 2, 30.0),
    Sketcher.Constraint("DistanceY", 0, 1, 0, 2, 22.0),
    Sketcher.Constraint("DistanceX", -1, 1, 0, 2, 30.0),
    Sketcher.Constraint("DistanceY", -1, 1, 0, 2, 91.5),
])
pad7 = doc.addObject("PartDesign::Pad", "Pad006")
body.addObject(pad7)
pad7.Profile = sketch15
pad7.Length = 5
pad7.Reversed = True

doc.recompute()
